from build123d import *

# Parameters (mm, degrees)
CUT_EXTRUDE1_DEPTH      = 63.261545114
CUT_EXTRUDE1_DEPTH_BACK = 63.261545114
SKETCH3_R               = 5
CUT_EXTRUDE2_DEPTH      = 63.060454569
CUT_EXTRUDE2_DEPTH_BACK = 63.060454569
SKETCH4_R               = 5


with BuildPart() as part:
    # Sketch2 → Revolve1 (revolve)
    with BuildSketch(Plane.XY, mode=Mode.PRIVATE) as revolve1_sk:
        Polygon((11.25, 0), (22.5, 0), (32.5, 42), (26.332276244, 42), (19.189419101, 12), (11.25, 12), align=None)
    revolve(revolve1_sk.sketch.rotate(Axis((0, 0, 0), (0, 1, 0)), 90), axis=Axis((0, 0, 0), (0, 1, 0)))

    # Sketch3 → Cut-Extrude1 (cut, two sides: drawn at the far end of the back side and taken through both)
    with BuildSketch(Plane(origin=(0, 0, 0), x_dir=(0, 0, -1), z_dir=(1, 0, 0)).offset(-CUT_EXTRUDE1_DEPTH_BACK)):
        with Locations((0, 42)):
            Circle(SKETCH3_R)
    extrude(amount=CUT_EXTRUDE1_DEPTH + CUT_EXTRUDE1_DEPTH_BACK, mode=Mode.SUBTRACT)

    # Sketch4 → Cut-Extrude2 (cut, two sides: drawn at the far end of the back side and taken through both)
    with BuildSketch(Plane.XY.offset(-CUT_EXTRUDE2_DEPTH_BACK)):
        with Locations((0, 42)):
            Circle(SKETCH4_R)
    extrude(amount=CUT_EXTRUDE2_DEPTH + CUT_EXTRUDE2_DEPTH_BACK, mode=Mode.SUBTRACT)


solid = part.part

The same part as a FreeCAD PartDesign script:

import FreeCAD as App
import Part
import Sketcher

doc = App.newDocument("Part")
body = doc.addObject("PartDesign::Body", "Body")

# Sketch on XY plane
sketch1 = body.newObject("Sketcher::SketchObject", "Sketch")
sketch1.AttachmentSupport = (doc.getObject("XY_Plane"), [""])
sketch1.MapMode = "FlatFace"
sketch1.addGeometry(Part.LineSegment(App.Vector(11.25, 0, 0), App.Vector(22.5, 0, 0)), False)
sketch1.addGeometry(Part.LineSegment(App.Vector(22.5, 0, 0), App.Vector(32.5, 42, 0)), False)
sketch1.addGeometry(Part.LineSegment(App.Vector(32.5, 42, 0), App.Vector(26.332276, 42, 0)), False)
sketch1.addGeometry(Part.LineSegment(App.Vector(26.332276, 42, 0), App.Vector(19.189419, 12, 0)), False)
sketch1.addGeometry(Part.LineSegment(App.Vector(19.189419, 12, 0), App.Vector(11.25, 12, 0)), False)
sketch1.addGeometry(Part.LineSegment(App.Vector(11.25, 12, 0), App.Vector(11.25, 0, 0)), False)
sketch1.addConstraint(Sketcher.Constraint("Coincident", 0, 2, 1, 1))
sketch1.addConstraint(Sketcher.Constraint("Coincident", 1, 2, 2, 1))
sketch1.addConstraint(Sketcher.Constraint("Coincident", 2, 2, 3, 1))
sketch1.addConstraint(Sketcher.Constraint("Coincident", 3, 2, 4, 1))
sketch1.addConstraint(Sketcher.Constraint("Coincident", 4, 2, 5, 1))
sketch1.addConstraint(Sketcher.Constraint("Coincident", 5, 2, 0, 1))
sketch1.addConstraint(Sketcher.Constraint("Horizontal", 0))
sketch1.addConstraint(Sketcher.Constraint("Horizontal", 2))
sketch1.addConstraint(Sketcher.Constraint("Horizontal", 4))
sketch1.addConstraint(Sketcher.Constraint("Vertical", 5))
sketch1.addConstraint(Sketcher.Constraint("PointOnObject", 0, 2, -1))
sketch1.addConstraint(Sketcher.Constraint("Parallel", 1, 3))
sketch1.addConstraint(Sketcher.Constraint("DistanceY", 5, 2, 5, 1, 12.0))
sketch1.addConstraint(Sketcher.Constraint("DistanceY", -1, 1, 1, 2, 42.0))
sketch1.addConstraint(Sketcher.Constraint("DistanceX", 0, 2, 1, 2, 10.0))
sketch1.addConstraint(Sketcher.Constraint("DistanceX", 0, 1, 0, 2, 11.25))
sketch1.addConstraint(Sketcher.Constraint("DistanceX", -1, 1, 0, 2, 22.5))
sketch1.addConstraint(Sketcher.Constraint("DistanceX", 4, 2, 4, 1, 7.939419))
revolution = body.newObject("PartDesign::Revolution", "Revolution")
revolution.Profile = sketch1
revolution.ReferenceAxis = (sketch1, ["V_Axis"])
revolution.Angle = 360

# Sketch on YZ plane
sketch2 = body.newObject("Sketcher::SketchObject", "Sketch001")
sketch2.AttachmentSupport = (doc.getObject("YZ_Plane"), [""])
sketch2.MapMode = "FlatFace"
sketch2.addGeometry(Part.Circle(App.Vector(42, 0, 0), App.Vector(0, 0, 1), 5), False)
sketch2.addConstraint(Sketcher.Constraint("PointOnObject", 0, 3, -1))
sketch2.addConstraint(Sketcher.Constraint("Diameter", 0, 10.0))
sketch2.addConstraint(Sketcher.Constraint("DistanceX", -1, 1, 0, 3, 42.0))
pocket1 = body.newObject("PartDesign::Pocket", "Pocket")
pocket1.Profile = sketch2
pocket1.Type = "ThroughAll"
pocket1.Midplane = True

# Sketch on XY plane
sketch3 = body.newObject("Sketcher::SketchObject", "Sketch002")
sketch3.AttachmentSupport = (doc.getObject("XY_Plane"), [""])
sketch3.MapMode = "FlatFace"
sketch3.addGeometry(Part.Circle(App.Vector(0, 42, 0), App.Vector(0, 0, 1), 5), False)
sketch3.addConstraint(Sketcher.Constraint("PointOnObject", 0, 3, -2))
sketch3.addConstraint(Sketcher.Constraint("Diameter", 0, 10.0))
sketch3.addConstraint(Sketcher.Constraint("DistanceY", -1, 1, 0, 3, 42.0))
pocket2 = body.newObject("PartDesign::Pocket", "Pocket001")
pocket2.Profile = sketch3
pocket2.Type = "ThroughAll"
pocket2.Midplane = True

doc.recompute()
